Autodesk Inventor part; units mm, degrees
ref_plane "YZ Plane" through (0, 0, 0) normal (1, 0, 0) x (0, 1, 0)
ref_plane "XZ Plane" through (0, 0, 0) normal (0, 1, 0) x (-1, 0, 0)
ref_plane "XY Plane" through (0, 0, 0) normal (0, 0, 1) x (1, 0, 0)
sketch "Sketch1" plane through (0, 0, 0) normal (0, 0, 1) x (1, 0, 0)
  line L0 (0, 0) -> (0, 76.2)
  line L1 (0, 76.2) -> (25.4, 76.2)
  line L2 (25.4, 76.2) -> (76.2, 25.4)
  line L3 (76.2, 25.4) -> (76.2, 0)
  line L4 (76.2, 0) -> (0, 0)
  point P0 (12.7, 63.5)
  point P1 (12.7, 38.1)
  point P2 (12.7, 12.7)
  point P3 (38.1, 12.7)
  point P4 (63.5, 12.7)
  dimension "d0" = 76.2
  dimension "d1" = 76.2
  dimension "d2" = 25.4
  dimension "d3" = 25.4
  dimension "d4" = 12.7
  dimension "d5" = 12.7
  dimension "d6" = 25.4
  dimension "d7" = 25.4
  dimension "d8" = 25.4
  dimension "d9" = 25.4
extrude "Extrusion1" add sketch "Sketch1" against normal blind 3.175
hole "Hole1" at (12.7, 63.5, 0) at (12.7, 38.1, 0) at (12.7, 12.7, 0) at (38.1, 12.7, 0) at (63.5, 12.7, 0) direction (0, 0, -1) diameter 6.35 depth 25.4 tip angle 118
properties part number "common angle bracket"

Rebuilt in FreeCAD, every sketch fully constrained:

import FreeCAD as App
import Part
import Sketcher
from FreeCAD import Vector
Q = App.Units.Quantity


def add_polygon(sketch, points):
    """Adds a closed chain of lines whose ends are joined by coincident constraints."""
    first, n = sketch.GeometryCount, len(points)
    for a, b in zip(points, points[1:] + points[:1]):
        sketch.addGeometry(Part.LineSegment(App.Vector(*a, 0), App.Vector(*b, 0)), False)
    for i in range(n):
        sketch.addConstraint(Sketcher.Constraint("Coincident", first + i, 2, first + (i + 1) % n, 1))

doc = App.newDocument("Part")
body = doc.addObject("PartDesign::Body", "Body")

# Sketch on XY plane
sketch1 = body.newObject("Sketcher::SketchObject", "Sketch")
sketch1.AttachmentSupport = (doc.getObject("XY_Plane"), [""])
sketch1.MapMode = "FlatFace"
add_polygon(sketch1, [(0, 76), (0, 0), (76, 0), (76, 25), (25, 76)])  # lines 0-4
sketch1.addConstraint(Sketcher.Constraint("Vertical", 0))
sketch1.addConstraint(Sketcher.Constraint("Horizontal", 1))
sketch1.addConstraint(Sketcher.Constraint("Vertical", 2))
sketch1.addConstraint(Sketcher.Constraint("Horizontal", 4))
sketch1.addConstraint(Sketcher.Constraint("Coincident", 0, 2, -1, 1))
sketch1.addConstraint(Sketcher.Constraint("Equal", 1, 0))
sketch1.addConstraint(Sketcher.Constraint("Equal", 4, 2))
sketch1.addConstraint(Sketcher.Constraint("DistanceX", 1, 1, 1, 2, Q("3 in")))
sketch1.addConstraint(Sketcher.Constraint("DistanceX", 4, 2, 4, 1, Q("1 in")))
pad1 = body.newObject("PartDesign::Pad", "Pad")
pad1.Profile = sketch1
pad1.Length = Q("0.125 in")
pad1.Reversed = True

# Sketch on XY plane
sketch2 = body.newObject("Sketcher::SketchObject", "Sketch001")
sketch2.AttachmentSupport = (doc.getObject("XY_Plane"), [""])
sketch2.MapMode = "FlatFace"
sketch2.addGeometry(Part.Circle(Vector(12.7, 63.5, 0), Vector(0, 0, 1), 3.2), False)
sketch2.addGeometry(Part.Circle(Vector(12.7, 38.1, 0), Vector(0, 0, 1), 3.2), False)
sketch2.addGeometry(Part.Circle(Vector(12.7, 12.7, 0), Vector(0, 0, 1), 3.2), False)
sketch2.addGeometry(Part.Circle(Vector(38.1, 12.7, 0), Vector(0, 0, 1), 3.2), False)
sketch2.addGeometry(Part.Circle(Vector(63.5, 12.7, 0), Vector(0, 0, 1), 3.2), False)
sketch2.addConstraint(Sketcher.Constraint("Equal", 0, 1))
sketch2.addConstraint(Sketcher.Constraint("Equal", 1, 2))
sketch2.addConstraint(Sketcher.Constraint("Equal", 2, 3))
sketch2.addConstraint(Sketcher.Constraint("Equal", 3, 4))
sketch2.addConstraint(Sketcher.Constraint("Horizontal", 2, 3, 3, 3))
sketch2.addConstraint(Sketcher.Constraint("Horizontal", 3, 3, 4, 3))
sketch2.addConstraint(Sketcher.Constraint("Vertical", 0, 3, 1, 3))
sketch2.addConstraint(Sketcher.Constraint("Vertical", 1, 3, 2, 3))
sketch2.addConstraint(Sketcher.Constraint("Diameter", 0, Q("0.25 in")))
sketch2.addConstraint(Sketcher.Constraint("DistanceY", 1, 3, 0, 3, Q("1 in")))
sketch2.addConstraint(Sketcher.Constraint("DistanceY", 2, 3, 1, 3, Q("1 in")))
sketch2.addConstraint(Sketcher.Constraint("DistanceX", 2, 3, 3, 3, Q("1 in")))
sketch2.addConstraint(Sketcher.Constraint("DistanceX", 3, 3, 4, 3, Q("1 in")))
sketch2.addConstraint(Sketcher.Constraint("DistanceX", -1, 1, 0, 3, Q("0.5 in")))
sketch2.addConstraint(Sketcher.Constraint("DistanceY", -1, 1, 0, 3, Q("2.5 in")))
doc.recompute()
hole = body.newObject("PartDesign::Hole", "Hole")
hole.Profile = sketch2
hole.ThreadType = "None"
hole.Diameter = Q("0.25 in")
hole.DepthType = "Dimension"
hole.Depth = Q("1 in")
hole.DrillPoint = "Angled"
hole.DrillPointAngle = 118

doc.recompute()
